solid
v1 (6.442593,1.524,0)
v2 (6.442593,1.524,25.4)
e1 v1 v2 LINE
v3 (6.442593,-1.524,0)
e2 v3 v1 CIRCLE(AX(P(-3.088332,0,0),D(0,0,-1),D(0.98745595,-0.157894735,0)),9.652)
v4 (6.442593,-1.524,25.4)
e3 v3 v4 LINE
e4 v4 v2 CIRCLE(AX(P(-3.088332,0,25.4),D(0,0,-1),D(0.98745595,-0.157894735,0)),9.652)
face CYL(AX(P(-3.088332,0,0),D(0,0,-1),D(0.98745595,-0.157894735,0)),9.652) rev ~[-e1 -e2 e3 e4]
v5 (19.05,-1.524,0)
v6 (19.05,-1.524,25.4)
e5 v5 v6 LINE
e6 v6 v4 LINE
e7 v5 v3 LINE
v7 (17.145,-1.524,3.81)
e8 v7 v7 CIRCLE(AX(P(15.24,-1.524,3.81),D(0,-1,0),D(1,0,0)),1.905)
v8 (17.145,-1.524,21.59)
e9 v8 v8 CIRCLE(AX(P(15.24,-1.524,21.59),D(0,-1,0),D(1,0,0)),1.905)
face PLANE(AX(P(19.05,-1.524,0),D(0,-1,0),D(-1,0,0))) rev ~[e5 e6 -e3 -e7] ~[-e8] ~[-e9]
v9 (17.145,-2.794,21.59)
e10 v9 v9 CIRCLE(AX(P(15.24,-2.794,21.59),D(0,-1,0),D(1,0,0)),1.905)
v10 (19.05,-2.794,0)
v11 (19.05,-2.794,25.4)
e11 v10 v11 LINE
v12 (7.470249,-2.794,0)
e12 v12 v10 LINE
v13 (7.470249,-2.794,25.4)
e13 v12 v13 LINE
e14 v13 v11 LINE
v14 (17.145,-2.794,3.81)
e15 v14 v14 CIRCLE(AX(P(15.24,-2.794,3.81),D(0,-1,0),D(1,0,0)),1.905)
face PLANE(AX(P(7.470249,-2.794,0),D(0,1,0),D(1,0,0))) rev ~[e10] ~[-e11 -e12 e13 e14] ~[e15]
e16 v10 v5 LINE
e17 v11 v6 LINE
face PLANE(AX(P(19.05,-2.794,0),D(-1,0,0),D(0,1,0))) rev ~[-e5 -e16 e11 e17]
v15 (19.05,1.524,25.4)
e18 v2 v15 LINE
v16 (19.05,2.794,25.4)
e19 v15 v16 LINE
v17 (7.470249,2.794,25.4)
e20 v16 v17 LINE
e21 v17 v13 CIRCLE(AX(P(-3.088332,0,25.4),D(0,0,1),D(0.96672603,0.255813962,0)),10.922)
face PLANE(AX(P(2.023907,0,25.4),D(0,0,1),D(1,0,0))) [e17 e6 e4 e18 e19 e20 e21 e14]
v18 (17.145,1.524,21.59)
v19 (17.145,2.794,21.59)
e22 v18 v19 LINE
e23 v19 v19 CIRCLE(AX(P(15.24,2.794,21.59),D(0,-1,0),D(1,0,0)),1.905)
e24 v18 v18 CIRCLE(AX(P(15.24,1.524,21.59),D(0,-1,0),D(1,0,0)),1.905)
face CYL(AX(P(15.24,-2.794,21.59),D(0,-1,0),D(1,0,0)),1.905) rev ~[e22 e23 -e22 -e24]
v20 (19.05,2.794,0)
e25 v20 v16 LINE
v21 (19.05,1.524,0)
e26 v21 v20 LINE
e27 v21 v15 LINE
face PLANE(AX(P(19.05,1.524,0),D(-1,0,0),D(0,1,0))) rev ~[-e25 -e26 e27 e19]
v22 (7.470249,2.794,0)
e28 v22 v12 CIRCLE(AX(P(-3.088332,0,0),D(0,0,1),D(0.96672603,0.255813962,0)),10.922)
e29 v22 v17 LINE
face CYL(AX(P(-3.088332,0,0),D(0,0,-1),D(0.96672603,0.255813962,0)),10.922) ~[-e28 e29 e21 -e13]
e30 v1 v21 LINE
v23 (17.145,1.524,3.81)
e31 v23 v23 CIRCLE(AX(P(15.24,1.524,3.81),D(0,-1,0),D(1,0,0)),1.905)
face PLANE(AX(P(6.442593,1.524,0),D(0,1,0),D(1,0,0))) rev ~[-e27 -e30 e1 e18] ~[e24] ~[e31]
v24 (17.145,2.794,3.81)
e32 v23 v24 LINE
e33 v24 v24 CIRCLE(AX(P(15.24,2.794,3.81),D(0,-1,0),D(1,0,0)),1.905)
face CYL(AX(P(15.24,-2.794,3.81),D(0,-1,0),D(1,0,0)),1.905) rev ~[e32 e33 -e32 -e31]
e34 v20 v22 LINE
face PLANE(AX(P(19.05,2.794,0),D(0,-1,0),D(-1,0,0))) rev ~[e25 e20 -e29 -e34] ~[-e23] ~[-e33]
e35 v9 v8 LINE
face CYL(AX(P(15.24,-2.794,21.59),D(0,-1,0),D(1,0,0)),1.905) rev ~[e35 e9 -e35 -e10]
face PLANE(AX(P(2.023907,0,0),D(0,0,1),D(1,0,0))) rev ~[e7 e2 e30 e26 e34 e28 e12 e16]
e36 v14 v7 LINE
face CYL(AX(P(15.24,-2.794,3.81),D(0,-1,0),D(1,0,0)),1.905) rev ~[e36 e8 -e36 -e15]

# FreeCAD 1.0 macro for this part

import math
import FreeCAD as App
import Part
import Sketcher

V = App.Vector
Q = App.Units.Quantity

doc = App.newDocument("Part")
body = doc.addObject("PartDesign::Body", "Body")

sketch1 = body.newObject("Sketcher::SketchObject", "Sketch")
sketch1.AttachmentSupport = (doc.getObject("XY_Plane"), [""])
sketch1.MapMode = "FlatFace"
sketch1.addGeometry([
    Part.ArcOfCircle(Part.Circle(V(-3.1, 0, 0), V(0, 0, 1), 9.7), math.radians(9), math.radians(351)),
    Part.LineSegment(V(6.4, 1.5, 0), V(19.1, 1.5, 0)),
    Part.LineSegment(V(19.1, 1.5, 0), V(19.1, 2.8, 0)),
    Part.LineSegment(V(19.1, 2.8, 0), V(7.5, 2.8, 0)),
    Part.ArcOfCircle(Part.Circle(V(-3.1, 0, 0), V(0, 0, 1), 10.9), math.radians(15), math.radians(345)),
    Part.LineSegment(V(7.5, -2.8, 0), V(19.1, -2.8, 0)),
    Part.LineSegment(V(19.1, -2.8, 0), V(19.1, -1.5, 0)),
    Part.LineSegment(V(19.1, -1.5, 0), V(6.4, -1.5, 0)),
], False)
sketch1.addConstraint([
    Sketcher.Constraint("Coincident", 0, 1, 1, 1),
    Sketcher.Constraint("Coincident", 1, 2, 2, 1),
    Sketcher.Constraint("Coincident", 2, 2, 3, 1),
    Sketcher.Constraint("Coincident", 3, 2, 4, 1),
    Sketcher.Constraint("Coincident", 4, 2, 5, 1),
    Sketcher.Constraint("Coincident", 5, 2, 6, 1),
    Sketcher.Constraint("Coincident", 6, 2, 7, 1),
    Sketcher.Constraint("Coincident", 7, 2, 0, 2),
    Sketcher.Constraint("Horizontal", 1),
    Sketcher.Constraint("Vertical", 2),
    Sketcher.Constraint("Horizontal", 3),
    Sketcher.Constraint("Horizontal", 5),
    Sketcher.Constraint("Vertical", 6),
    Sketcher.Constraint("Horizontal", 7),
    Sketcher.Constraint("Coincident", 4, 3, 0, 3),
    Sketcher.Constraint("Symmetric", 3, 2, 4, 2, -1),
    Sketcher.Constraint("Symmetric", 1, 2, 6, 2, -1),
    Sketcher.Constraint("Radius", 0, Q("0.38 in")),
    Sketcher.Constraint("Radius", 4, Q("0.43 in")),
    Sketcher.Constraint("DistanceY", 2, 1, 2, 2, Q("0.05 in")),
    Sketcher.Constraint("DistanceY", -1, 1, 0, 1, Q("0.06 in")),
    Sketcher.Constraint("DistanceX", -1, 1, 1, 2, Q("0.75 in")),
    Sketcher.Constraint("DistanceX", 3, 2, 3, 1, Q("11.579751 mm")),
])
pad1 = body.newObject("PartDesign::Pad", "Pad")
pad1.Profile = sketch1
pad1.Length = Q("1 in")

sketch2 = body.newObject("Sketcher::SketchObject", "Sketch001")
sketch2.AttachmentSupport = (doc.getObject("XZ_Plane"), [""])
sketch2.MapMode = "FlatFace"
sketch2.AttachmentOffset = App.Placement(V(0, 0, 0.11 * 25.4), App.Rotation())
sketch2.addGeometry([
    Part.Circle(V(15.2, 21.6, 0), V(0, 0, 1), 1.9),
    Part.Circle(V(15.2, 3.8, 0), V(0, 0, 1), 1.9),
], False)
sketch2.addConstraint([
    Sketcher.Constraint("Equal", 0, 1),
    Sketcher.Constraint("Vertical", 0, 3, 1, 3),
    Sketcher.Constraint("Diameter", 0, Q("0.15 in")),
    Sketcher.Constraint("DistanceX", -1, 1, 0, 3, Q("0.6 in")),
    Sketcher.Constraint("DistanceY", 1, 3, 0, 3, Q("0.7 in")),
    Sketcher.Constraint("DistanceY", -1, 1, 0, 3, Q("0.85 in")),
])
pocket1 = body.newObject("PartDesign::Pocket", "Pocket")
pocket1.Profile = sketch2
pocket1.Length = Q("1 in")

doc.recompute()
